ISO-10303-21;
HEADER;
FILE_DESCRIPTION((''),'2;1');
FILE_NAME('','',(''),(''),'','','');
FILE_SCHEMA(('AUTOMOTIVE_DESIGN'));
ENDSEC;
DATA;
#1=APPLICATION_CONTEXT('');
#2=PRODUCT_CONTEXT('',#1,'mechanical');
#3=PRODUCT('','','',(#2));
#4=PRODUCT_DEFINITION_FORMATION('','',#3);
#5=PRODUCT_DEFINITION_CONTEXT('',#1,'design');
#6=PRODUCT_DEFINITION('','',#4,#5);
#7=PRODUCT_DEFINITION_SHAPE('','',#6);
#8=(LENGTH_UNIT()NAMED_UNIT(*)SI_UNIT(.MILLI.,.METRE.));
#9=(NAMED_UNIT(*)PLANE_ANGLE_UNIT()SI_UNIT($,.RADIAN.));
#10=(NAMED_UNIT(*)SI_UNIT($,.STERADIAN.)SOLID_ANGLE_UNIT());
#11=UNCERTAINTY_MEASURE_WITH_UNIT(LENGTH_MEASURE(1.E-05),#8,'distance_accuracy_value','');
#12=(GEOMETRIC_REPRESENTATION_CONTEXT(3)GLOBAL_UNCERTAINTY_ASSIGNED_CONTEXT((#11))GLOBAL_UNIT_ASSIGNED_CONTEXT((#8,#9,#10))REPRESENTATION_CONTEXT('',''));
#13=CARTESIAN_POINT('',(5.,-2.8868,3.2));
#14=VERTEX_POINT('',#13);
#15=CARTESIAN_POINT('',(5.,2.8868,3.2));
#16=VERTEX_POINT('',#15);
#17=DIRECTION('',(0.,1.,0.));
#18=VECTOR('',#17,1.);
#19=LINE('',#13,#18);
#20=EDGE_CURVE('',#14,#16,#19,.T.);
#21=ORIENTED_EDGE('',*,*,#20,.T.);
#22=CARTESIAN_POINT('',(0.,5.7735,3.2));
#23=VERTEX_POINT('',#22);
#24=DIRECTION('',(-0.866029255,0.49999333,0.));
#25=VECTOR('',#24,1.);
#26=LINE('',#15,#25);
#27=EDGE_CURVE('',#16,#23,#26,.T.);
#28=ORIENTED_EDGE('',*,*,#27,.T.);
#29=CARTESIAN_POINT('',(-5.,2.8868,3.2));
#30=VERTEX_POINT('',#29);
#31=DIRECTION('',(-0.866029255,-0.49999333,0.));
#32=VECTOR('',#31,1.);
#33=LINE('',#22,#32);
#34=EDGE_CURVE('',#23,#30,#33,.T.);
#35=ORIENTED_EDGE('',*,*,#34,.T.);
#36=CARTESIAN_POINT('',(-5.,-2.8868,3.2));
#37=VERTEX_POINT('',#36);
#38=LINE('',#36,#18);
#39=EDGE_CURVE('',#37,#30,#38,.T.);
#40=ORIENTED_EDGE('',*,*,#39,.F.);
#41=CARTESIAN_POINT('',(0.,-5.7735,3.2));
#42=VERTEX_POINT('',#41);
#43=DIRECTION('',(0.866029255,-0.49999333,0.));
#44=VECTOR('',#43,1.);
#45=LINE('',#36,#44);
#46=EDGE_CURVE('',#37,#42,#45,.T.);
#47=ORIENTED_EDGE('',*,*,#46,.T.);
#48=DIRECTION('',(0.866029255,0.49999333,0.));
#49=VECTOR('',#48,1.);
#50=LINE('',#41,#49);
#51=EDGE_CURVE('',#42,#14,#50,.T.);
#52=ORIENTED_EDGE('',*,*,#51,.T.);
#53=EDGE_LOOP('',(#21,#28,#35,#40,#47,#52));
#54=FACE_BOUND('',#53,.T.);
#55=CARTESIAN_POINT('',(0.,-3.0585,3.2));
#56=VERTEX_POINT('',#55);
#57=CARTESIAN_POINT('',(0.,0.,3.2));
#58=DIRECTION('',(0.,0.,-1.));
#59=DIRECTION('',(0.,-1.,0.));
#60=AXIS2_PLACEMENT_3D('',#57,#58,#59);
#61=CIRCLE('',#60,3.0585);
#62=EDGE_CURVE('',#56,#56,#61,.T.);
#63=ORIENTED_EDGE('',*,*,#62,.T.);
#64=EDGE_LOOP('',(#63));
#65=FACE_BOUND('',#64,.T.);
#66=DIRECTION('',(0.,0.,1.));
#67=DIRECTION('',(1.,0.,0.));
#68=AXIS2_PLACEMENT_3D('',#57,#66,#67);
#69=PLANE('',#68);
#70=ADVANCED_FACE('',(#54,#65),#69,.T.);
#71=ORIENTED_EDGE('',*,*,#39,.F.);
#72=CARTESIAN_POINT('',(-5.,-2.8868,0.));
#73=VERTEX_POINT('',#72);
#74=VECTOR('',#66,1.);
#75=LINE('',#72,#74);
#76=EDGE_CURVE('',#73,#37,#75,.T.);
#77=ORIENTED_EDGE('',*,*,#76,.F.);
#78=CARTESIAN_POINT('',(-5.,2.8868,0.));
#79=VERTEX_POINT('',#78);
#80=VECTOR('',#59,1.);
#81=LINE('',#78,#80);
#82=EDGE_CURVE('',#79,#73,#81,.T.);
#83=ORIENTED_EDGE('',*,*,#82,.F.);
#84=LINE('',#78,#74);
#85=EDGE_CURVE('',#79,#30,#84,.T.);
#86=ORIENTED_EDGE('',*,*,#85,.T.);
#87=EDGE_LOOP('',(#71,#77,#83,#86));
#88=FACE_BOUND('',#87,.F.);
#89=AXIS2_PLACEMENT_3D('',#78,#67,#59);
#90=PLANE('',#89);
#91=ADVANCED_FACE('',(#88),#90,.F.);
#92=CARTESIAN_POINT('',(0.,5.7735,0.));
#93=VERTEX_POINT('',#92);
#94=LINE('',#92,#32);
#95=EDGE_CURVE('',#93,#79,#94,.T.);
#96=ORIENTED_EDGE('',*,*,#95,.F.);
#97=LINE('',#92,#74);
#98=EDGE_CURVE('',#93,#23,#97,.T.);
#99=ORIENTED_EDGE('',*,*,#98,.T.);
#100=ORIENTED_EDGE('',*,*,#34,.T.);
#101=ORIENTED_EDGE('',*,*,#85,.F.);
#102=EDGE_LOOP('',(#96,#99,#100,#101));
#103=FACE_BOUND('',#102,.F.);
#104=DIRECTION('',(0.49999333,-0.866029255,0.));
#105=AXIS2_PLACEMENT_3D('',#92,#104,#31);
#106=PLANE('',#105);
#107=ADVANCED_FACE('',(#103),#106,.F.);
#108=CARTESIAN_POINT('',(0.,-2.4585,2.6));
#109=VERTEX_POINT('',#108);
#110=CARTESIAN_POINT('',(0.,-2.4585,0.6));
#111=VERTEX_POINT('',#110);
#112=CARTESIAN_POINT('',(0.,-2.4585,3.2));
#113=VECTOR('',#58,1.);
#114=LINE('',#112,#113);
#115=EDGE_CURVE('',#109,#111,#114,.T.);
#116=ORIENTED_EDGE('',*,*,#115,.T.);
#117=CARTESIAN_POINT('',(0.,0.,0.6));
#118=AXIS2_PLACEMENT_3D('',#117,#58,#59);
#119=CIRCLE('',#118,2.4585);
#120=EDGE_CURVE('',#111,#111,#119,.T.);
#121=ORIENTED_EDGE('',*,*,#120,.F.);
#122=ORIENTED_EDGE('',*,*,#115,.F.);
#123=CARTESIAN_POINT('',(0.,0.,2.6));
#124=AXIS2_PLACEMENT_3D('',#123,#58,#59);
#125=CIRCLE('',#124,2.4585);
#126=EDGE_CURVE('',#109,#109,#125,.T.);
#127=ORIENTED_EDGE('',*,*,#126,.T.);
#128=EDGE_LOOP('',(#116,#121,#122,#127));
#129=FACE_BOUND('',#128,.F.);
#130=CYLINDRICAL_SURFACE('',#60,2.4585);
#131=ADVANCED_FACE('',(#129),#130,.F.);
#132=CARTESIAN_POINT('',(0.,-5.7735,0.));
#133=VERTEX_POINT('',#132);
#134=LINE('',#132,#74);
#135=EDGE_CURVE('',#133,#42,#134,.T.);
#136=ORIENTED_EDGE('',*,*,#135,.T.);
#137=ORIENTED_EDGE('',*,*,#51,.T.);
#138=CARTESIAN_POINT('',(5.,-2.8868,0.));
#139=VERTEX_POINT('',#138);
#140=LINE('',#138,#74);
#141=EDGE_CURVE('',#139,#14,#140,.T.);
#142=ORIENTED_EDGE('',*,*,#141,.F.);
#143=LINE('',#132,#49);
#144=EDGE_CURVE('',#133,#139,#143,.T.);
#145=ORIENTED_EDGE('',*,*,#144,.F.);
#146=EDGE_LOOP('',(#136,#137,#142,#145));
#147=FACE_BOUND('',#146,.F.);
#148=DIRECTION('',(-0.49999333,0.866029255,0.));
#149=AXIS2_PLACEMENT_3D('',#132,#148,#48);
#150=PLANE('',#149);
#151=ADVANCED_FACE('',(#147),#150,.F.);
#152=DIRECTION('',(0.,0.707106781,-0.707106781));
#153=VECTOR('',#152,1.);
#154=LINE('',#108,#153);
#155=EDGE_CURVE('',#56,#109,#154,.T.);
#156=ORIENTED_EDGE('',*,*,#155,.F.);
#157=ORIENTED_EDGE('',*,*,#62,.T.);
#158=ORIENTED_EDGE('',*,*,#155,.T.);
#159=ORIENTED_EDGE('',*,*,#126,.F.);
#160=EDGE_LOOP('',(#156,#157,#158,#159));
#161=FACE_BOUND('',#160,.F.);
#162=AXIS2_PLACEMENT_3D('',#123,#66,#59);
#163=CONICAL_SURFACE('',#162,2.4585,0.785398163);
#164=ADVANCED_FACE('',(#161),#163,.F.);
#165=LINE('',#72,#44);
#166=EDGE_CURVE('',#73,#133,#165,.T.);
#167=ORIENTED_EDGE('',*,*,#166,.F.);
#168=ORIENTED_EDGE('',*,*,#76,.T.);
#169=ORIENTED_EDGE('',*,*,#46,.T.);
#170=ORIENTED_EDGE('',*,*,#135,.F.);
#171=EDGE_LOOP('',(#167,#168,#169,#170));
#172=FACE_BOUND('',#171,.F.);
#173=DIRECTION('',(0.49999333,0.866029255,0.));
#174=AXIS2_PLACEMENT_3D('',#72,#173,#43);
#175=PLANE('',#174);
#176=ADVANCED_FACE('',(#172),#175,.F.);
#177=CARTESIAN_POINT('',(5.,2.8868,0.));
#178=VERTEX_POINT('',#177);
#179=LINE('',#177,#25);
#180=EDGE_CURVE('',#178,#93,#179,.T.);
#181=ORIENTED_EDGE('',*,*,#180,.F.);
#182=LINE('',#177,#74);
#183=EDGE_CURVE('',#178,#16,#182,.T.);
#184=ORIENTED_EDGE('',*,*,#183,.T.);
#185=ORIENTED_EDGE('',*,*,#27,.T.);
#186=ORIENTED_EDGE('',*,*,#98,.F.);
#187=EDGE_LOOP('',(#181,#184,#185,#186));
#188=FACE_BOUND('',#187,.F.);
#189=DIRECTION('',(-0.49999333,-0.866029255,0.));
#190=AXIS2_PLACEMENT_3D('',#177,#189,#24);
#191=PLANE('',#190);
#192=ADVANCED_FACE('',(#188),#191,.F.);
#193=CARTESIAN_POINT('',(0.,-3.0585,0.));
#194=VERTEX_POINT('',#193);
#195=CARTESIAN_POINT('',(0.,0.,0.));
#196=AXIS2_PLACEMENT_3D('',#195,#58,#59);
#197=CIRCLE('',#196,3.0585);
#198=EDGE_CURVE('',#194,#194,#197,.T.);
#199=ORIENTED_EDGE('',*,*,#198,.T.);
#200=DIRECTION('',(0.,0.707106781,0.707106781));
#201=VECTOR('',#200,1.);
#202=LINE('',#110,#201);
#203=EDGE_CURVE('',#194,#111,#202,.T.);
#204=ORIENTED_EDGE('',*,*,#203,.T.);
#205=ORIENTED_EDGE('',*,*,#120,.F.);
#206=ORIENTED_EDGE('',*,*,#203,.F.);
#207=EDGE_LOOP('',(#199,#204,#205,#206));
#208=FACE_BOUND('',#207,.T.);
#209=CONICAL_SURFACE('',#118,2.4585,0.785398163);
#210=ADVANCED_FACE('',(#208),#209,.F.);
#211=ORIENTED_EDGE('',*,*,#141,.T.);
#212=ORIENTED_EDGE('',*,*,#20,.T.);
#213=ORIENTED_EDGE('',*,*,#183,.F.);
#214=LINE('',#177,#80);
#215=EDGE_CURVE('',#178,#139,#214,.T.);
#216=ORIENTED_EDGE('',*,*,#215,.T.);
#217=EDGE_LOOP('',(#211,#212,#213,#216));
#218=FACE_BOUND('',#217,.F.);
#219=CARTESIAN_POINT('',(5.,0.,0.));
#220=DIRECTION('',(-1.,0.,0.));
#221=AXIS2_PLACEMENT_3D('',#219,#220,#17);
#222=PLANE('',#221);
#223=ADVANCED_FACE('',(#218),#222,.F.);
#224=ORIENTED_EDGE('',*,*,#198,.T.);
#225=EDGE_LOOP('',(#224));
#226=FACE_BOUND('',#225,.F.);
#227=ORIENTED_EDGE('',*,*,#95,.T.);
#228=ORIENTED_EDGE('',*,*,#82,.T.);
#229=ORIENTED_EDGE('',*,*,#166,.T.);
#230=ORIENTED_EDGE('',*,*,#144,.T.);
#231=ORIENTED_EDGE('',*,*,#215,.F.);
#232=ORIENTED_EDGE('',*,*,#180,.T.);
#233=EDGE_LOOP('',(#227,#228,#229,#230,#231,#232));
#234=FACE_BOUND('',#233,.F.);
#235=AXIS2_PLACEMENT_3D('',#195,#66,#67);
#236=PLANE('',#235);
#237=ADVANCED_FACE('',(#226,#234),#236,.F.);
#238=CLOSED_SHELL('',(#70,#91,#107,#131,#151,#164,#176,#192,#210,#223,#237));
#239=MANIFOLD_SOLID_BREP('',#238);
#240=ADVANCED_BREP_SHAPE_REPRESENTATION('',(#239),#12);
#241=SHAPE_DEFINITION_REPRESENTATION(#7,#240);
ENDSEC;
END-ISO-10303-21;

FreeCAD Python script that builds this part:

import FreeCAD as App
import Part
import Sketcher

V = App.Vector
Q = App.Units.Quantity


def edges_at(feature, points):
    """Names of the edges that pass closest to the given points."""
    edges = feature.Shape.Edges
    near = lambda p: min(range(len(edges)), key=lambda i: edges[i].distToShape(Part.Vertex(*p))[0])
    return sorted({f"Edge{near(p) + 1}" for p in points})


def add_polygon(sketch, points):
    """Adds a closed chain of lines whose ends are joined by coincident constraints."""
    first, n = sketch.GeometryCount, len(points)
    for a, b in zip(points, points[1:] + points[:1]):
        sketch.addGeometry(Part.LineSegment(App.Vector(*a, 0), App.Vector(*b, 0)), False)
    for i in range(n):
        sketch.addConstraint(Sketcher.Constraint("Coincident", first + i, 2, first + (i + 1) % n, 1))

doc = App.newDocument("Part")
body = doc.addObject("PartDesign::Body", "Body")

# Sketch on XY plane
sketch1 = body.newObject("Sketcher::SketchObject", "Sketch")
sketch1.AttachmentSupport = (doc.getObject("XY_Plane"), [""])
sketch1.MapMode = "FlatFace"
add_polygon(sketch1, [(0, 6), (-5, 3), (-5, -3), (0, -6), (5, -3), (5, 3)])  # lines 0-5
sketch1.addConstraint(Sketcher.Constraint("Vertical", 1))
sketch1.addConstraint(Sketcher.Constraint("Vertical", 4))
sketch1.addConstraint(Sketcher.Constraint("Symmetric", 0, 2, 3, 2, -1, 1))
sketch1.addConstraint(Sketcher.Constraint("Symmetric", 2, 2, 5, 2, -1, 1))
sketch1.addConstraint(Sketcher.Constraint("PointOnObject", 2, 2, -2))
sketch1.addConstraint(Sketcher.Constraint("Parallel", 2, 5))
sketch1.addConstraint(Sketcher.Constraint("Horizontal", 1, 2, 3, 2))
sketch1.addConstraint(Sketcher.Constraint("DistanceX", 1, 2, 3, 2, Q("10 mm")))
sketch1.addConstraint(Sketcher.Constraint("Angle", 0, Q("-150.0004 deg")))
sketch1.addConstraint(Sketcher.Constraint("DistanceY", 1, 2, 1, 1, Q("5.7736 mm")))
pad1 = body.newObject("PartDesign::Pad", "Pad")
pad1.Profile = sketch1
pad1.Length = 3.2

# Sketch on XY plane
sketch2 = body.newObject("Sketcher::SketchObject", "Sketch001")
sketch2.AttachmentSupport = (doc.getObject("XY_Plane"), [""])
sketch2.MapMode = "FlatFace"
sketch2.AttachmentOffset = App.Placement(V(0, 0, 3.2), App.Rotation())
sketch2.addGeometry(Part.Circle(V(0, 0, 0), V(0, 0, 1), 2.5), False)
sketch2.addConstraint(Sketcher.Constraint("Coincident", 0, 3, -1, 1))
sketch2.addConstraint(Sketcher.Constraint("Diameter", 0, Q("4.917 mm")))
doc.recompute()
hole = body.newObject("PartDesign::Hole", "Hole")
hole.Profile = sketch2
hole.ThreadType = "None"
hole.Diameter = 4.917
hole.DepthType = "ThroughAll"
doc.recompute()

chamfer = body.newObject("PartDesign::Chamfer", "Chamfer")
chamfer.Base = (hole, edges_at(hole, [(0, 2.458, 3.2), (0, 2.458, 0)]))
chamfer.Size = 0.6

doc.recompute()
